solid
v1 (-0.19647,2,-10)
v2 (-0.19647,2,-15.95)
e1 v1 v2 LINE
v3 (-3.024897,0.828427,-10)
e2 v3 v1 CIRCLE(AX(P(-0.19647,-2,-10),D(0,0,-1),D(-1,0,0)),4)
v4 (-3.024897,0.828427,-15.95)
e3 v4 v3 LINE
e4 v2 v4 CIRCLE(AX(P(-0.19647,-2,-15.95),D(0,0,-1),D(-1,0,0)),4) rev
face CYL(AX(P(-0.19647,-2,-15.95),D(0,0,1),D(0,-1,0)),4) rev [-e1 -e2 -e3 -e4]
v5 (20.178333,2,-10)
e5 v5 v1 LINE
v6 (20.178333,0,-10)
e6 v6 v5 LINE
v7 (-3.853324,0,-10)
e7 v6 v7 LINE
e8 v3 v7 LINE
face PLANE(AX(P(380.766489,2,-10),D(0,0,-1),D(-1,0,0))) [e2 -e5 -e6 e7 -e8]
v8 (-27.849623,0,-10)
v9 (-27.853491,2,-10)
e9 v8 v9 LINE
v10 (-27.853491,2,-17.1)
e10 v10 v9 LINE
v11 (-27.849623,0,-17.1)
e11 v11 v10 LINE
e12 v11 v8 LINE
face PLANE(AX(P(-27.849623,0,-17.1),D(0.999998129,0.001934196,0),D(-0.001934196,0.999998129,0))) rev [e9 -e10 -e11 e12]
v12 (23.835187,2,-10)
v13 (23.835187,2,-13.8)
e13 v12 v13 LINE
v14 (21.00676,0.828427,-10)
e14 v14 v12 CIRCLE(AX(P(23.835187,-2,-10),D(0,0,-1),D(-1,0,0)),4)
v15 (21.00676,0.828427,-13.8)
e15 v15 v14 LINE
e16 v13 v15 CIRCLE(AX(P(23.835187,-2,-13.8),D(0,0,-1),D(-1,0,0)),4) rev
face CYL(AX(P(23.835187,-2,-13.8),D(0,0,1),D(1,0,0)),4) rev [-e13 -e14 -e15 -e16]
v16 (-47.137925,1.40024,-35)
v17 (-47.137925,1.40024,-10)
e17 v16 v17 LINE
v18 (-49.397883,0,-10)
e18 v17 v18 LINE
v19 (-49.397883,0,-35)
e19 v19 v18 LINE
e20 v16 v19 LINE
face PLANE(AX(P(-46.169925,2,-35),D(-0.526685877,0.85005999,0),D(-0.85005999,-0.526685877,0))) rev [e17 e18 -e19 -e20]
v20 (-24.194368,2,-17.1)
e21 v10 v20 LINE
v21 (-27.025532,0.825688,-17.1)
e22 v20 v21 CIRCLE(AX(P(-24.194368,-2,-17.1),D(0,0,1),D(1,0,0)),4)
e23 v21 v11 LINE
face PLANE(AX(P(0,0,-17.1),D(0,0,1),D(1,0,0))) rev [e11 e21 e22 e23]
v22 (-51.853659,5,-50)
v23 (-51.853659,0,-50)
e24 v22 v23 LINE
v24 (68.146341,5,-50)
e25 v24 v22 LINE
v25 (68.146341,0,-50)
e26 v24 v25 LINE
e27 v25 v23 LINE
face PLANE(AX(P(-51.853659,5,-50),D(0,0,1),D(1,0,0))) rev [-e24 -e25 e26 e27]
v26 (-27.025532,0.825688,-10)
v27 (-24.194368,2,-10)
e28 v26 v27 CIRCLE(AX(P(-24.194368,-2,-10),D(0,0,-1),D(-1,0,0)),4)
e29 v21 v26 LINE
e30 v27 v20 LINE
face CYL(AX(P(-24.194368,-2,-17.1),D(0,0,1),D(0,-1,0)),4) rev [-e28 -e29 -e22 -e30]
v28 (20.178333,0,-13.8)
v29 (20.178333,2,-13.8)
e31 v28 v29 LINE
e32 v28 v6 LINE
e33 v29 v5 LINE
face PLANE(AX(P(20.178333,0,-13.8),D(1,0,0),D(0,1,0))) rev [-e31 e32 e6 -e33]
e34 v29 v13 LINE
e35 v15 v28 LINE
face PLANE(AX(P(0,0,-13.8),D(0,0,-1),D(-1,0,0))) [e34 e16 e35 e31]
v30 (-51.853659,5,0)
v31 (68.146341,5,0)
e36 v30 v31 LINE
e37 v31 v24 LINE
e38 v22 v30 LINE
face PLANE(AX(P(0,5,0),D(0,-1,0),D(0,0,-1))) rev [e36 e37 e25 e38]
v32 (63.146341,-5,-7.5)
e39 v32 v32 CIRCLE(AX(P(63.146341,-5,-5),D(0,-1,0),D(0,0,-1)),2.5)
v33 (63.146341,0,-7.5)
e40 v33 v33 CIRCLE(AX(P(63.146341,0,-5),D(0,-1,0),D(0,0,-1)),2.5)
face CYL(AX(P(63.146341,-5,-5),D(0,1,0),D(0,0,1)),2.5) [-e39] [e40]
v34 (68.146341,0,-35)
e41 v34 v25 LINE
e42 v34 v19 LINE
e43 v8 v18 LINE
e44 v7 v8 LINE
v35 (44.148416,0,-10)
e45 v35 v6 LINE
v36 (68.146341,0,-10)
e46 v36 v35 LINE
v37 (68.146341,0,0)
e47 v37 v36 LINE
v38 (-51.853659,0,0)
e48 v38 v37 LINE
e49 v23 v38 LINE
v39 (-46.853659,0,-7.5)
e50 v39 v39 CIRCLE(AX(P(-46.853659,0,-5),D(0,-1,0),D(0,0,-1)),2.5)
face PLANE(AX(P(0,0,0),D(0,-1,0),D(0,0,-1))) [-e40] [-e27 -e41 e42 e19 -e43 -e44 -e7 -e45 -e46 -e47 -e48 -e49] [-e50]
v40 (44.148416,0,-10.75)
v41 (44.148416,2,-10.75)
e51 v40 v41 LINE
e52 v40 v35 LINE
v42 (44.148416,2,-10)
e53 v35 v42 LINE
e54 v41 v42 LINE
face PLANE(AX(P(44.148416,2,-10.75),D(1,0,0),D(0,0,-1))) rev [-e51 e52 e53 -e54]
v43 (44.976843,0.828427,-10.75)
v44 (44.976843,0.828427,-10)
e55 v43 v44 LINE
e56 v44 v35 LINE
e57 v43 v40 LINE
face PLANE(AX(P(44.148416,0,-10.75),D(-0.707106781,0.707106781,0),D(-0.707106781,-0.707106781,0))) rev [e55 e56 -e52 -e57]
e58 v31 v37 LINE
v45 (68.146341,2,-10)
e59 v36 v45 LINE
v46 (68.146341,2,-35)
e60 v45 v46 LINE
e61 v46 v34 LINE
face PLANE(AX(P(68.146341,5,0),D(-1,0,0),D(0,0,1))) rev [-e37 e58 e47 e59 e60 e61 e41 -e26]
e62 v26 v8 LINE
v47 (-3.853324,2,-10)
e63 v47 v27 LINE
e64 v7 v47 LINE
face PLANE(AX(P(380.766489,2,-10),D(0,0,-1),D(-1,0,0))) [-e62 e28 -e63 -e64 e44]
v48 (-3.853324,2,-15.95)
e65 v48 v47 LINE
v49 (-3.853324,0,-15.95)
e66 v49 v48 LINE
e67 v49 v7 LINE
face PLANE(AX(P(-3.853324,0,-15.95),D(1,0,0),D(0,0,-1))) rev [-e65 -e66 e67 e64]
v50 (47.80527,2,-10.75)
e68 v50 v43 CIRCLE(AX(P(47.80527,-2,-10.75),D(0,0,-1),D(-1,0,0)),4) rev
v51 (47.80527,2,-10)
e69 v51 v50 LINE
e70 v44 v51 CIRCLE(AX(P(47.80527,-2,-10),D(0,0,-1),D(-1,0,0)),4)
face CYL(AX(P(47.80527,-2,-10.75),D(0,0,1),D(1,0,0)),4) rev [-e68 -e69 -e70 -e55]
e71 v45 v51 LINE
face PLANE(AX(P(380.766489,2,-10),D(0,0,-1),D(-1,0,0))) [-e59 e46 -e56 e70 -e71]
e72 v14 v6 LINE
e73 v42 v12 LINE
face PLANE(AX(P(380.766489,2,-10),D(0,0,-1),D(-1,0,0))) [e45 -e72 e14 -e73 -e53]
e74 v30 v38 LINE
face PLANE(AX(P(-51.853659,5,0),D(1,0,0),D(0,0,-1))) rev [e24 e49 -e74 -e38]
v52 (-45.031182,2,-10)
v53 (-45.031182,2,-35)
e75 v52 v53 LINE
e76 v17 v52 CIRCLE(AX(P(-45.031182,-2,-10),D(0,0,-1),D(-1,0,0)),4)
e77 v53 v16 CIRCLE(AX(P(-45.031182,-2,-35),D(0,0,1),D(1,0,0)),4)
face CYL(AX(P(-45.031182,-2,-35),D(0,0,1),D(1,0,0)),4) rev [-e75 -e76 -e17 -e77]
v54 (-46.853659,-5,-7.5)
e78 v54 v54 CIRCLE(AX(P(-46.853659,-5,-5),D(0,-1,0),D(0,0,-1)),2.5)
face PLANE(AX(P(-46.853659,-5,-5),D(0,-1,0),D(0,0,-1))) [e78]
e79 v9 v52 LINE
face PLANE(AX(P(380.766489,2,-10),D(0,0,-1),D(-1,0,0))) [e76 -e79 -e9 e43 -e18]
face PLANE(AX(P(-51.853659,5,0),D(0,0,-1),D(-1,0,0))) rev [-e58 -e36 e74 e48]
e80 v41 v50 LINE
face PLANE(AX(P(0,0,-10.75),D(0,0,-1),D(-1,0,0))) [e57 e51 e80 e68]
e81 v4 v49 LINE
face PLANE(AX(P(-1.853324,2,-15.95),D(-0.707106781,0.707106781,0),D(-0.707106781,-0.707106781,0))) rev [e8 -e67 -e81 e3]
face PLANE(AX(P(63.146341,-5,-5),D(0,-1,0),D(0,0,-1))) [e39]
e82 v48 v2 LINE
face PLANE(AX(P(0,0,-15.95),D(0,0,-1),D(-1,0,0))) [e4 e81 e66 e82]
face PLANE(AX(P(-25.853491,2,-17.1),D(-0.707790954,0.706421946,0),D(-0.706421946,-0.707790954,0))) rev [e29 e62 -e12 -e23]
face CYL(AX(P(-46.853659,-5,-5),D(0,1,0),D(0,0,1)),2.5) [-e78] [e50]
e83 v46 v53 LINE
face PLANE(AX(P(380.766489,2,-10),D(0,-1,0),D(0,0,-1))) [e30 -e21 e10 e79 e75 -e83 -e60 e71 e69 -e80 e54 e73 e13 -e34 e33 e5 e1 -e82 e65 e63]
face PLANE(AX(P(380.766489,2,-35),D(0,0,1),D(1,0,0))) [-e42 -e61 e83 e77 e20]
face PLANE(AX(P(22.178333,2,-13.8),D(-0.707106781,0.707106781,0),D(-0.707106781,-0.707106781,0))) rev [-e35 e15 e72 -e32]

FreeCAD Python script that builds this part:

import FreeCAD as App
import Part
import Sketcher

V = App.Vector


def edges_at(feature, points):
    """Names of the edges that pass closest to the given points."""
    edges = feature.Shape.Edges
    near = lambda p: min(range(len(edges)), key=lambda i: edges[i].distToShape(Part.Vertex(*p))[0])
    return sorted({f"Edge{near(p) + 1}" for p in points})

doc = App.newDocument("Part")
body = doc.addObject("PartDesign::Body", "Body")

sketch1 = body.newObject("Sketcher::SketchObject", "Sketch")
sketch1.AttachmentSupport = (doc.getObject("XZ_Plane"), [""])
sketch1.MapMode = "FlatFace"
sketch1.addGeometry(Part.LineSegment(V(-52, -50, 0), V(-52, 0, 0)), False)
sketch1.addGeometry(Part.LineSegment(V(-52, 0, 0), V(68, 0, 0)), False)
sketch1.addGeometry(Part.LineSegment(V(68, 0, 0), V(68, -50, 0)), False)
sketch1.addGeometry(Part.LineSegment(V(68, -50, 0), V(-52, -50, 0)), False)
sketch1.addConstraint(Sketcher.Constraint("Coincident", 0, 2, 1, 1))
sketch1.addConstraint(Sketcher.Constraint("Coincident", 1, 2, 2, 1))
sketch1.addConstraint(Sketcher.Constraint("Coincident", 2, 2, 3, 1))
sketch1.addConstraint(Sketcher.Constraint("Coincident", 3, 2, 0, 1))
sketch1.addConstraint(Sketcher.Constraint("Vertical", 0))
sketch1.addConstraint(Sketcher.Constraint("Horizontal", 1))
sketch1.addConstraint(Sketcher.Constraint("Vertical", 2))
sketch1.addConstraint(Sketcher.Constraint("Horizontal", 3))
sketch1.addConstraint(Sketcher.Constraint("PointOnObject", 0, 2, -1))
sketch1.addConstraint(Sketcher.Constraint("DistanceX", 1, 1, 1, 2, 120.0))
sketch1.addConstraint(Sketcher.Constraint("DistanceY", 0, 1, 0, 2, 50.0))
sketch1.addConstraint(Sketcher.Constraint("DistanceX", 0, 2, -1, 1, 51.853659))
pad1 = body.newObject("PartDesign::Pad", "Pad")
pad1.Profile = sketch1
pad1.Length = 5
pad1.Reversed = True

sketch2 = body.newObject("Sketcher::SketchObject", "Sketch001")
sketch2.AttachmentSupport = (doc.getObject("YZ_Plane"), [""])
sketch2.MapMode = "FlatFace"
sketch2.AttachmentOffset = App.Placement(V(0, 0, 68.146341), App.Rotation())
sketch2.addGeometry(Part.LineSegment(V(2, -10, 0), V(0, -10, 0)), False)
sketch2.addGeometry(Part.LineSegment(V(0, -10, 0), V(0, -35, 0)), False)
sketch2.addGeometry(Part.LineSegment(V(0, -35, 0), V(2, -35, 0)), False)
sketch2.addGeometry(Part.LineSegment(V(2, -35, 0), V(2, -10, 0)), False)
sketch2.addConstraint(Sketcher.Constraint("Coincident", 0, 2, 1, 1))
sketch2.addConstraint(Sketcher.Constraint("Coincident", 1, 2, 2, 1))
sketch2.addConstraint(Sketcher.Constraint("Coincident", 2, 2, 3, 1))
sketch2.addConstraint(Sketcher.Constraint("Coincident", 3, 2, 0, 1))
sketch2.addConstraint(Sketcher.Constraint("Horizontal", 0))
sketch2.addConstraint(Sketcher.Constraint("Vertical", 1))
sketch2.addConstraint(Sketcher.Constraint("Horizontal", 2))
sketch2.addConstraint(Sketcher.Constraint("Vertical", 3))
sketch2.addConstraint(Sketcher.Constraint("PointOnObject", 0, 2, -2))
sketch2.addConstraint(Sketcher.Constraint("DistanceX", 0, 2, 0, 1, 2.0))
sketch2.addConstraint(Sketcher.Constraint("DistanceY", 1, 2, 1, 1, 25.0))
sketch2.addConstraint(Sketcher.Constraint("DistanceY", 0, 2, -1, 1, 10.0))
pocket1 = body.newObject("PartDesign::Pocket", "Pocket")
pocket1.Profile = sketch2
pocket1.Type = "ThroughAll"
pocket1.Midplane = True

sketch3 = body.newObject("Sketcher::SketchObject", "Sketch002")
sketch3.AttachmentSupport = (doc.getObject("XY_Plane"), [""])
sketch3.MapMode = "FlatFace"
sketch3.AttachmentOffset = App.Placement(V(0, 0, -10), App.Rotation())
sketch3.addGeometry(Part.LineSegment(V(46.1, 2, 0), V(44.1, 0, 0)), False)
sketch3.addGeometry(Part.LineSegment(V(44.1, 0, 0), V(44.1, 2, 0)), False)
sketch3.addGeometry(Part.LineSegment(V(44.1, 2, 0), V(46.1, 2, 0)), False)
sketch3.addConstraint(Sketcher.Constraint("Coincident", 0, 2, 1, 1))
sketch3.addConstraint(Sketcher.Constraint("Coincident", 1, 2, 2, 1))
sketch3.addConstraint(Sketcher.Constraint("Coincident", 2, 2, 0, 1))
sketch3.addConstraint(Sketcher.Constraint("Vertical", 1))
sketch3.addConstraint(Sketcher.Constraint("Horizontal", 2))
sketch3.addConstraint(Sketcher.Constraint("PointOnObject", 0, 2, -1))
sketch3.addConstraint(Sketcher.Constraint("Equal", 2, 1))
sketch3.addConstraint(Sketcher.Constraint("DistanceX", 2, 1, 2, 2, 2.0))
sketch3.addConstraint(Sketcher.Constraint("DistanceX", -1, 1, 0, 2, 44.148416))
pad2 = body.newObject("PartDesign::Pad", "Pad001")
pad2.Profile = sketch3
pad2.Length = 0.75
pad2.Reversed = True

sketch4 = body.newObject("Sketcher::SketchObject", "Sketch003")
sketch4.AttachmentSupport = (doc.getObject("XY_Plane"), [""])
sketch4.MapMode = "FlatFace"
sketch4.AttachmentOffset = App.Placement(V(0, 0, -10), App.Rotation())
sketch4.addGeometry(Part.LineSegment(V(20.2, 0, 0), V(20.2, 2, 0)), False)
sketch4.addGeometry(Part.LineSegment(V(20.2, 2, 0), V(22.2, 2, 0)), False)
sketch4.addGeometry(Part.LineSegment(V(22.2, 2, 0), V(20.2, 0, 0)), False)
sketch4.addConstraint(Sketcher.Constraint("Coincident", 0, 2, 1, 1))
sketch4.addConstraint(Sketcher.Constraint("Coincident", 1, 2, 2, 1))
sketch4.addConstraint(Sketcher.Constraint("Coincident", 2, 2, 0, 1))
sketch4.addConstraint(Sketcher.Constraint("Vertical", 0))
sketch4.addConstraint(Sketcher.Constraint("Horizontal", 1))
sketch4.addConstraint(Sketcher.Constraint("PointOnObject", 2, 2, -1))
sketch4.addConstraint(Sketcher.Constraint("Equal", 1, 0))
sketch4.addConstraint(Sketcher.Constraint("DistanceX", 1, 1, 1, 2, 2.0))
sketch4.addConstraint(Sketcher.Constraint("DistanceX", -1, 1, 0, 2, 20.178333))
pad3 = body.newObject("PartDesign::Pad", "Pad002")
pad3.Profile = sketch4
pad3.Length = 3.8
pad3.Reversed = True

sketch5 = body.newObject("Sketcher::SketchObject", "Sketch004")
sketch5.AttachmentSupport = (doc.getObject("XY_Plane"), [""])
sketch5.MapMode = "FlatFace"
sketch5.AttachmentOffset = App.Placement(V(0, 0, -10), App.Rotation())
sketch5.addGeometry(Part.LineSegment(V(-3.9, 0, 0), V(-3.9, 2, 0)), False)
sketch5.addGeometry(Part.LineSegment(V(-3.9, 2, 0), V(-1.9, 2, 0)), False)
sketch5.addGeometry(Part.LineSegment(V(-1.9, 2, 0), V(-3.9, 0, 0)), False)
sketch5.addConstraint(Sketcher.Constraint("Coincident", 0, 2, 1, 1))
sketch5.addConstraint(Sketcher.Constraint("Coincident", 1, 2, 2, 1))
sketch5.addConstraint(Sketcher.Constraint("Coincident", 2, 2, 0, 1))
sketch5.addConstraint(Sketcher.Constraint("Vertical", 0))
sketch5.addConstraint(Sketcher.Constraint("Horizontal", 1))
sketch5.addConstraint(Sketcher.Constraint("PointOnObject", 2, 2, -1))
sketch5.addConstraint(Sketcher.Constraint("Equal", 1, 0))
sketch5.addConstraint(Sketcher.Constraint("DistanceX", 1, 1, 1, 2, 2.0))
sketch5.addConstraint(Sketcher.Constraint("DistanceX", 0, 2, -1, 1, 3.853324))
pad4 = body.newObject("PartDesign::Pad", "Pad003")
pad4.Profile = sketch5
pad4.Length = 5.95
pad4.Reversed = True

sketch6 = body.newObject("Sketcher::SketchObject", "Sketch005")
sketch6.AttachmentSupport = (doc.getObject("XY_Plane"), [""])
sketch6.MapMode = "FlatFace"
sketch6.AttachmentOffset = App.Placement(V(0, 0, -10), App.Rotation())
sketch6.addGeometry(Part.LineSegment(V(-27.8, 0, 0), V(-27.9, 2, 0)), False)
sketch6.addGeometry(Part.LineSegment(V(-27.9, 2, 0), V(-25.9, 2, 0)), False)
sketch6.addGeometry(Part.LineSegment(V(-25.9, 2, 0), V(-27.8, 0, 0)), False)
sketch6.addConstraint(Sketcher.Constraint("Coincident", 0, 2, 1, 1))
sketch6.addConstraint(Sketcher.Constraint("Coincident", 1, 2, 2, 1))
sketch6.addConstraint(Sketcher.Constraint("Coincident", 2, 2, 0, 1))
sketch6.addConstraint(Sketcher.Constraint("Horizontal", 1))
sketch6.addConstraint(Sketcher.Constraint("PointOnObject", 2, 2, -1))
sketch6.addConstraint(Sketcher.Constraint("DistanceX", 1, 1, 1, 2, 2.0))
sketch6.addConstraint(Sketcher.Constraint("DistanceY", -1, 1, 0, 2, 2.0))
sketch6.addConstraint(Sketcher.Constraint("DistanceX", 0, 2, -1, 1, 27.853491))
sketch6.addConstraint(Sketcher.Constraint("DistanceX", 0, 2, 2, 2, 0.003868))
pad5 = body.newObject("PartDesign::Pad", "Pad004")
pad5.Profile = sketch6
pad5.Length = 7.1
pad5.Reversed = True

sketch7 = body.newObject("Sketcher::SketchObject", "Sketch006")
sketch7.AttachmentSupport = (doc.getObject("XZ_Plane"), [""])
sketch7.MapMode = "FlatFace"
sketch7.addGeometry(Part.Circle(V(-46.9, -5, 0), V(0, 0, 1), 2.5), False)
sketch7.addGeometry(Part.Circle(V(63.1, -5, 0), V(0, 0, 1), 2.5), False)
sketch7.addConstraint(Sketcher.Constraint("Equal", 0, 1))
sketch7.addConstraint(Sketcher.Constraint("Horizontal", 0, 3, 1, 3))
sketch7.addConstraint(Sketcher.Constraint("Diameter", 0, 5.0))
sketch7.addConstraint(Sketcher.Constraint("DistanceY", 0, 3, -1, 1, 5.0))
sketch7.addConstraint(Sketcher.Constraint("DistanceX", 0, 3, 1, 3, 110.0))
sketch7.addConstraint(Sketcher.Constraint("DistanceX", 0, 3, -1, 1, 46.853659))
pad6 = body.newObject("PartDesign::Pad", "Pad005")
pad6.Profile = sketch7
pad6.Length = 5

sketch8 = body.newObject("Sketcher::SketchObject", "Sketch007")
sketch8.AttachmentSupport = (doc.getObject("XY_Plane"), [""])
sketch8.MapMode = "FlatFace"
sketch8.AttachmentOffset = App.Placement(V(0, 0, -10), App.Rotation())
sketch8.addGeometry(Part.LineSegment(V(-49.4, 0, 0), V(-49.4, 2, 0)), False)
sketch8.addGeometry(Part.LineSegment(V(-49.4, 2, 0), V(-46.2, 2, 0)), False)
sketch8.addGeometry(Part.LineSegment(V(-46.2, 2, 0), V(-49.4, 0, 0)), False)
sketch8.addConstraint(Sketcher.Constraint("Coincident", 0, 2, 1, 1))
sketch8.addConstraint(Sketcher.Constraint("Coincident", 1, 2, 2, 1))
sketch8.addConstraint(Sketcher.Constraint("Coincident", 2, 2, 0, 1))
sketch8.addConstraint(Sketcher.Constraint("Vertical", 0))
sketch8.addConstraint(Sketcher.Constraint("Horizontal", 1))
sketch8.addConstraint(Sketcher.Constraint("PointOnObject", 2, 2, -1))
sketch8.addConstraint(Sketcher.Constraint("DistanceY", 0, 1, 0, 2, 2.0))
sketch8.addConstraint(Sketcher.Constraint("DistanceX", 1, 1, 1, 2, 3.227958))
sketch8.addConstraint(Sketcher.Constraint("DistanceX", 0, 2, -1, 1, 49.397883))
pad7 = body.newObject("PartDesign::Pad", "Pad006")
pad7.Profile = sketch8
pad7.Length = 25
pad7.Reversed = True

sketch9 = body.newObject("Sketcher::SketchObject", "Sketch008")
sketch9.AttachmentSupport = (doc.getObject("XY_Plane"), [""])
sketch9.MapMode = "FlatFace"
sketch9.AttachmentOffset = App.Placement(V(0, 0, -10), App.Rotation())
sketch9.addGeometry(Part.LineSegment(V(-49.4, 2, 0), V(-49.4, 0, 0)), False)
sketch9.addGeometry(Part.LineSegment(V(-49.4, 0, 0), V(-51.9, 0, 0)), False)
sketch9.addGeometry(Part.LineSegment(V(-51.9, 0, 0), V(-51.9, 2, 0)), False)
sketch9.addGeometry(Part.LineSegment(V(-51.9, 2, 0), V(-49.4, 2, 0)), False)
sketch9.addConstraint(Sketcher.Constraint("Coincident", 0, 2, 1, 1))
sketch9.addConstraint(Sketcher.Constraint("Coincident", 1, 2, 2, 1))
sketch9.addConstraint(Sketcher.Constraint("Coincident", 2, 2, 3, 1))
sketch9.addConstraint(Sketcher.Constraint("Coincident", 3, 2, 0, 1))
sketch9.addConstraint(Sketcher.Constraint("Vertical", 0))
sketch9.addConstraint(Sketcher.Constraint("Horizontal", 1))
sketch9.addConstraint(Sketcher.Constraint("Vertical", 2))
sketch9.addConstraint(Sketcher.Constraint("Horizontal", 3))
sketch9.addConstraint(Sketcher.Constraint("PointOnObject", 0, 2, -1))
sketch9.addConstraint(Sketcher.Constraint("DistanceY", 0, 2, 0, 1, 2.0))
sketch9.addConstraint(Sketcher.Constraint("DistanceX", 1, 2, 1, 1, 2.455775))
sketch9.addConstraint(Sketcher.Constraint("DistanceX", 1, 2, -1, 1, 51.853659))
pad8 = body.newObject("PartDesign::Pad", "Pad007")
pad8.Profile = sketch9
pad8.Length = 25
pad8.Reversed = True
doc.recompute()

fillet = body.newObject("PartDesign::Fillet", "Fillet")
fillet.Base = (pad8, edges_at(pad8, [
    (-46.17, 2, -22.5),
    (46.148, 2, -10.375),
    (22.178, 2, -11.9),
    (-1.853, 2, -12.975),
    (-25.853, 2, -13.55),
]))
fillet.Radius = 4

doc.recompute()
